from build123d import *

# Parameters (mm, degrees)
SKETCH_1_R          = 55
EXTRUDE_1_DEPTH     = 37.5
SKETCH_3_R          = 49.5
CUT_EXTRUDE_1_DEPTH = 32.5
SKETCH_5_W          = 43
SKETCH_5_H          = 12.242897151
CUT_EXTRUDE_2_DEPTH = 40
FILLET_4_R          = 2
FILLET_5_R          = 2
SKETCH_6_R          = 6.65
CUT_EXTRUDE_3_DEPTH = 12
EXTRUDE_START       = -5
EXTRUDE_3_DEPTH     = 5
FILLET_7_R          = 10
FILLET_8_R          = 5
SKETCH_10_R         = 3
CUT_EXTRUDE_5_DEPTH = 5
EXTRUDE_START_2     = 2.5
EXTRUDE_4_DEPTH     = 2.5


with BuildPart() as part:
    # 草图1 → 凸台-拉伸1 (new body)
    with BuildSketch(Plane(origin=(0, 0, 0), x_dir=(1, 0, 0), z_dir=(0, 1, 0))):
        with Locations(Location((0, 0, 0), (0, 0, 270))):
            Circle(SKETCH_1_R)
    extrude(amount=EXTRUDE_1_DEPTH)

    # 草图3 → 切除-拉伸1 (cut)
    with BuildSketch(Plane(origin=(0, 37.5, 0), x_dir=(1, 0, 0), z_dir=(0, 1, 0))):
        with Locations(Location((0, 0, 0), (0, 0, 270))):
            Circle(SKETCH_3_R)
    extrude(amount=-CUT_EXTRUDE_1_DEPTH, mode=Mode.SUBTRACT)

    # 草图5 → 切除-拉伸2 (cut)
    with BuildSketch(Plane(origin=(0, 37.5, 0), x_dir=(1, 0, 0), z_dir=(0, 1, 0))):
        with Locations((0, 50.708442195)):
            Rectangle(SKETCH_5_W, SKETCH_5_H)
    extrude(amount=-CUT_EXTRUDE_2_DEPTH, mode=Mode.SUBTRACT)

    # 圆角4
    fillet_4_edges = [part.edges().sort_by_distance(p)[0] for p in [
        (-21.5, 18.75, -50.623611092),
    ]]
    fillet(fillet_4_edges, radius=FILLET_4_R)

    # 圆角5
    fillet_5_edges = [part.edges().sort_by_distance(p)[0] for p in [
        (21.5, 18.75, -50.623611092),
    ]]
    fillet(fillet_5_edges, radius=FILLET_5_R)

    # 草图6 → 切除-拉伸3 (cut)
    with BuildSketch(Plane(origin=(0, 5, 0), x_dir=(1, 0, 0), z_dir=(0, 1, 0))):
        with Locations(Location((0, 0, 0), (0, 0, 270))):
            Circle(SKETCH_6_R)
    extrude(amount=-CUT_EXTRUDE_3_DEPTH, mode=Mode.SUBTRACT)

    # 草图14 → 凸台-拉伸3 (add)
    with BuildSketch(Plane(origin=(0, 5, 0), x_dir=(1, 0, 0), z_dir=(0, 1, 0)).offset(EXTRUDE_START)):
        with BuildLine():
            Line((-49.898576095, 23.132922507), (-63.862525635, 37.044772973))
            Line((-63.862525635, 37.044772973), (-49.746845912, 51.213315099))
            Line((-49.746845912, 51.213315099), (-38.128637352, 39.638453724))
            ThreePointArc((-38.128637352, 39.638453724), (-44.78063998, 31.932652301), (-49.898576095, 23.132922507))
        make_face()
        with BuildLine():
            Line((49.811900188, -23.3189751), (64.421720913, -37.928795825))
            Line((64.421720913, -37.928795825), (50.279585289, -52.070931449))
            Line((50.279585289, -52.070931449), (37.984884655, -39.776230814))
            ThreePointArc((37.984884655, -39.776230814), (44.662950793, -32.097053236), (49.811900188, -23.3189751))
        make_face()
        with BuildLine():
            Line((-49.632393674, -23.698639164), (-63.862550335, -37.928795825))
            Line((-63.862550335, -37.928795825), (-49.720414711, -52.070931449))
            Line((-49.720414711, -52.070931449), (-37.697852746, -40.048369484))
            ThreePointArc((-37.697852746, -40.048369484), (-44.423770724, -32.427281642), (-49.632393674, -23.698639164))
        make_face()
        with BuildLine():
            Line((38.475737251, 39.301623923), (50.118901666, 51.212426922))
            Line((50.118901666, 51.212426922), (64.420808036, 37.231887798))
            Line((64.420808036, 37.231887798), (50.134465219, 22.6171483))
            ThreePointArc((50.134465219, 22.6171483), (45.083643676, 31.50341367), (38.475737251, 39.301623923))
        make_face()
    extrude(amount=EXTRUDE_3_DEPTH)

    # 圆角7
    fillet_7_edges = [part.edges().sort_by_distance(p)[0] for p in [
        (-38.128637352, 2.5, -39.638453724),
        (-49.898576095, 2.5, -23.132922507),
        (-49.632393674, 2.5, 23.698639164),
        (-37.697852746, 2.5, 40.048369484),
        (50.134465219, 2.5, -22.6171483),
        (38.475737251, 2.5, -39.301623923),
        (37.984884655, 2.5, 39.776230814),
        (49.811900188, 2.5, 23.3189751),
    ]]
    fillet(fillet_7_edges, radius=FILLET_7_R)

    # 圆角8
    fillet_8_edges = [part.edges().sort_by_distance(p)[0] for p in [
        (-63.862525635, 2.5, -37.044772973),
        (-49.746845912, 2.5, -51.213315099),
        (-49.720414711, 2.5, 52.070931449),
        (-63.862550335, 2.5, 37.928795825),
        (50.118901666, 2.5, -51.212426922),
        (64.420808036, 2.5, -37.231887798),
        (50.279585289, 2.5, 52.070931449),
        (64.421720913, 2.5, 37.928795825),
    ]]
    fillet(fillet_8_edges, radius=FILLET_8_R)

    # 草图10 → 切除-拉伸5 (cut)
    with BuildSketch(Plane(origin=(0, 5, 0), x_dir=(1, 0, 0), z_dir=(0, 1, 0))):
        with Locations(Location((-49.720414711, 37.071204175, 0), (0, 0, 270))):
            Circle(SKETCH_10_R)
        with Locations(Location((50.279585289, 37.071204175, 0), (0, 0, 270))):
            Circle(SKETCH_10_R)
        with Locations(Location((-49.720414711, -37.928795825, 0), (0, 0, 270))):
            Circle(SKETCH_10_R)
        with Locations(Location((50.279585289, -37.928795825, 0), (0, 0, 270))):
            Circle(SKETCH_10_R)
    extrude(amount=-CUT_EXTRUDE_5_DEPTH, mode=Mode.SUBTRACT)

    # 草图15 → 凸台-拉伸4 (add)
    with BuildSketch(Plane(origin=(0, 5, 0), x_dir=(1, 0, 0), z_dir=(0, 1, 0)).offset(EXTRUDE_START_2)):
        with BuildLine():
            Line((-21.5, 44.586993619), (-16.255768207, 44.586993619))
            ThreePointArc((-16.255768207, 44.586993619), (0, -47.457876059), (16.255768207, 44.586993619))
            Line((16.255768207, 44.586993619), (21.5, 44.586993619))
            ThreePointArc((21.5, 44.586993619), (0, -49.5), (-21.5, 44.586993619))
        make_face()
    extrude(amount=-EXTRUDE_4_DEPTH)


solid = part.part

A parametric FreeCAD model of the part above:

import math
import FreeCAD as App
import Part
import Sketcher


def edges_at(feature, points):
    """Names of the edges that pass closest to the given points."""
    edges = feature.Shape.Edges
    near = lambda p: min(range(len(edges)), key=lambda i: edges[i].distToShape(Part.Vertex(*p))[0])
    return sorted({f"Edge{near(p) + 1}" for p in points})

doc = App.newDocument("Part")
params = doc.addObject("Spreadsheet::Sheet", "Params")
for row, (alias, value) in enumerate([
    ("sketch1_diameter", "110 mm"),
    ("pad1_length", "37.5 mm"),
    ("sketch2_diameter", "99 mm"),
    ("pocket1_length", "32.5 mm"),
    ("sketch3_width", "43 mm"),
    ("pocket2_length", "40 mm"),
    ("fillet_radius", "2 mm"),
    ("fillet2_radius", "2 mm"),
    ("sketch4_diameter", "13.3 mm"),
    ("pocket3_length", "12 mm"),
    ("sketch5_radius", "55 mm"),
    ("sketch5_length", "20 mm"),
    ("pad2_length", "5 mm"),
    ("fillet3_radius", "10 mm"),
    ("fillet4_radius", "5 mm"),
    ("sketch6_diameter", "6 mm"),
    ("pocket4_length", "5 mm"),
    ("sketch7_radius", "49.5 mm"),
    ("pad3_length", "2.5 mm"),
], start=1):
    params.set(f"A{row}", alias)
    params.set(f"B{row}", "=" + value)
    params.setAlias(f"B{row}", alias)

body = doc.addObject("PartDesign::Body", "Body")

# Sketch on XZ plane
sketch1 = body.newObject("Sketcher::SketchObject", "Sketch")
sketch1.AttachmentSupport = (doc.getObject("XZ_Plane"), [""])
sketch1.MapMode = "FlatFace"
sketch1.addGeometry(Part.Circle(App.Vector(0, 0, 0), App.Vector(0, 0, 1), 55), False)
sketch1.addConstraint([
    Sketcher.Constraint("Coincident", 0, 3, -1, 1),
    Sketcher.Constraint("Diameter", 0, 110.0),
])
sketch1.setExpression("Constraints[1]", "Params.sketch1_diameter")
pad1 = body.newObject("PartDesign::Pad", "Pad")
pad1.Profile = sketch1
pad1.setExpression("Length", "Params.pad1_length")
pad1.Reversed = True

# Sketch on XZ plane
sketch2 = body.newObject("Sketcher::SketchObject", "Sketch001")
sketch2.AttachmentSupport = (doc.getObject("XZ_Plane"), [""])
sketch2.MapMode = "FlatFace"
sketch2.AttachmentOffset = App.Placement(App.Vector(0, 0, -37.5), App.Rotation())
sketch2.addGeometry(Part.Circle(App.Vector(0, 0, 0), App.Vector(0, 0, 1), 50), False)
sketch2.addConstraint([
    Sketcher.Constraint("Coincident", 0, 3, -1, 1),
    Sketcher.Constraint("Diameter", 0, 99.0),
])
sketch2.setExpression("Constraints[1]", "Params.sketch2_diameter")
pocket1 = body.newObject("PartDesign::Pocket", "Pocket")
pocket1.Profile = sketch2
pocket1.setExpression("Length", "Params.pocket1_length")
pocket1.Reversed = True

# Sketch on XZ plane
sketch3 = body.newObject("Sketcher::SketchObject", "Sketch002")
sketch3.AttachmentSupport = (doc.getObject("XZ_Plane"), [""])
sketch3.MapMode = "FlatFace"
sketch3.AttachmentOffset = App.Placement(App.Vector(0, 0, -37.5), App.Rotation())
sketch3.addGeometry([
    Part.LineSegment(App.Vector(-22, -57, 0), App.Vector(-22, -45, 0)),
    Part.LineSegment(App.Vector(-22, -45, 0), App.Vector(22, -45, 0)),
    Part.LineSegment(App.Vector(22, -45, 0), App.Vector(22, -57, 0)),
    Part.LineSegment(App.Vector(22, -57, 0), App.Vector(-22, -57, 0)),
], False)
sketch3.addConstraint([
    Sketcher.Constraint("Coincident", 0, 2, 1, 1),
    Sketcher.Constraint("Coincident", 1, 2, 2, 1),
    Sketcher.Constraint("Coincident", 2, 2, 3, 1),
    Sketcher.Constraint("Coincident", 3, 2, 0, 1),
    Sketcher.Constraint("Vertical", 0),
    Sketcher.Constraint("Horizontal", 1),
    Sketcher.Constraint("Vertical", 2),
    Sketcher.Constraint("Horizontal", 3),
    Sketcher.Constraint("DistanceX", 1, 1, 1, 2, 43.0),
    Sketcher.Constraint("DistanceX", 0, 2, -1, 1, 21.5),
    Sketcher.Constraint("DistanceY", 0, 1, 0, 2, 12.242897),
    Sketcher.Constraint("DistanceY", 2, 2, -1, 1, 56.829891),
])
sketch3.setExpression("Constraints[8]", "Params.sketch3_width")
pocket2 = body.newObject("PartDesign::Pocket", "Pocket001")
pocket2.Profile = sketch3
pocket2.setExpression("Length", "Params.pocket2_length")
pocket2.Reversed = True
doc.recompute()

fillet = body.newObject("PartDesign::Fillet", "Fillet")
fillet.Base = (pocket2, edges_at(pocket2, [(-21.5, 18.75, -50.624)]))
fillet.setExpression("Radius", "Params.fillet_radius")
doc.recompute()

fillet2 = body.newObject("PartDesign::Fillet", "Fillet001")
fillet2.Base = (fillet, edges_at(fillet, [(21.5, 18.75, -50.624)]))
fillet2.setExpression("Radius", "Params.fillet2_radius")

# Sketch on XZ plane
sketch4 = body.newObject("Sketcher::SketchObject", "Sketch003")
sketch4.AttachmentSupport = (doc.getObject("XZ_Plane"), [""])
sketch4.MapMode = "FlatFace"
sketch4.AttachmentOffset = App.Placement(App.Vector(0, 0, -5), App.Rotation())
sketch4.addGeometry(Part.Circle(App.Vector(0, 0, 0), App.Vector(0, 0, 1), 7), False)
sketch4.addConstraint([
    Sketcher.Constraint("Coincident", 0, 3, -1, 1),
    Sketcher.Constraint("Diameter", 0, 13.3),
])
sketch4.setExpression("Constraints[1]", "Params.sketch4_diameter")
pocket3 = body.newObject("PartDesign::Pocket", "Pocket002")
pocket3.Profile = sketch4
pocket3.setExpression("Length", "Params.pocket3_length")
pocket3.Reversed = True

# Sketch on XZ plane
sketch5 = body.newObject("Sketcher::SketchObject", "Sketch004")
sketch5.AttachmentSupport = (doc.getObject("XZ_Plane"), [""])
sketch5.MapMode = "FlatFace"
sketch5.addGeometry([
    Part.LineSegment(App.Vector(-64, -37, 0), App.Vector(-50, -23, 0)),  # 0
    Part.ArcOfCircle(Part.Circle(App.Vector(0, 0, 0), App.Vector(0, 0, 1), 55), math.radians(-155), math.radians(-134)),  # 1
    Part.LineSegment(App.Vector(-38, -40, 0), App.Vector(-50, -51, 0)),  # 2
    Part.LineSegment(App.Vector(-50, -51, 0), App.Vector(-64, -37, 0)),  # 3
    Part.LineSegment(App.Vector(64, 38, 0), App.Vector(50, 23, 0)),  # 4
    Part.ArcOfCircle(Part.Circle(App.Vector(0, 0, 0), App.Vector(0, 0, 1), 55), math.radians(25), math.radians(46)),  # 5
    Part.LineSegment(App.Vector(38, 40, 0), App.Vector(50, 52, 0)),  # 6
    Part.LineSegment(App.Vector(50, 52, 0), App.Vector(64, 38, 0)),  # 7
    Part.LineSegment(App.Vector(-50, 24, 0), App.Vector(-64, 38, 0)),  # 8
    Part.LineSegment(App.Vector(-64, 38, 0), App.Vector(-50, 52, 0)),  # 9
    Part.LineSegment(App.Vector(-50, 52, 0), App.Vector(-38, 40, 0)),  # 10
    Part.ArcOfCircle(Part.Circle(App.Vector(0, 0, 0), App.Vector(0, 0, 1), 55), math.radians(133), math.radians(154)),  # 11
    Part.LineSegment(App.Vector(50, -51, 0), App.Vector(38, -39, 0)),  # 12
    Part.ArcOfCircle(Part.Circle(App.Vector(0, 0, 0), App.Vector(0, 0, 1), 55), math.radians(-46), math.radians(-24)),  # 13
    Part.LineSegment(App.Vector(50, -23, 0), App.Vector(64, -37, 0)),  # 14
    Part.LineSegment(App.Vector(64, -37, 0), App.Vector(50, -51, 0)),  # 15
], False)
sketch5.addConstraint([
    Sketcher.Constraint("Coincident", 0, 2, 1, 1),
    Sketcher.Constraint("Coincident", 1, 2, 2, 1),
    Sketcher.Constraint("Coincident", 2, 2, 3, 1),
    Sketcher.Constraint("Coincident", 3, 2, 0, 1),
    Sketcher.Constraint("Coincident", 4, 2, 5, 1),
    Sketcher.Constraint("Coincident", 5, 2, 6, 1),
    Sketcher.Constraint("Coincident", 6, 2, 7, 1),
    Sketcher.Constraint("Coincident", 7, 2, 4, 1),
    Sketcher.Constraint("Coincident", 8, 2, 9, 1),
    Sketcher.Constraint("Coincident", 9, 2, 10, 1),
    Sketcher.Constraint("Coincident", 10, 2, 11, 1),
    Sketcher.Constraint("Coincident", 11, 2, 8, 1),
    Sketcher.Constraint("Coincident", 12, 2, 13, 1),
    Sketcher.Constraint("Coincident", 13, 2, 14, 1),
    Sketcher.Constraint("Coincident", 14, 2, 15, 1),
    Sketcher.Constraint("Coincident", 15, 2, 12, 1),
    Sketcher.Constraint("Coincident", 1, 3, -1, 1),
    Sketcher.Constraint("Coincident", 5, 3, -1, 1),
    Sketcher.Constraint("Coincident", 11, 3, -1, 1),
    Sketcher.Constraint("Coincident", 13, 3, -1, 1),
    Sketcher.Constraint("Equal", 1, 5),
    Sketcher.Constraint("Equal", 5, 11),
    Sketcher.Constraint("Equal", 11, 13),
    Sketcher.Constraint("Parallel", 0, 2),
    Sketcher.Constraint("Perpendicular", 2, 3),
    Sketcher.Constraint("Parallel", 4, 6),
    Sketcher.Constraint("Perpendicular", 6, 7),
    Sketcher.Constraint("Parallel", 7, 8),
    Sketcher.Constraint("Perpendicular", 8, 9),
    Sketcher.Constraint("Perpendicular", 9, 10),
    Sketcher.Constraint("Parallel", 12, 14),
    Sketcher.Constraint("Perpendicular", 14, 15),
    Sketcher.Constraint("Horizontal", 7, 2, 8, 2),
    Sketcher.Constraint("Horizontal", 6, 2, 9, 2),
    Sketcher.Constraint("Equal", 3, 7),
    Sketcher.Constraint("Equal", 7, 9),
    Sketcher.Constraint("Equal", 9, 15),
    Sketcher.Constraint("Radius", 1, 55.0),
    Sketcher.Constraint("Distance", 3, 20.0),
    Sketcher.Constraint("Distance", 0, 19.711202),
    Sketcher.Constraint("DistanceX", -1, 1, 4, 2, 49.8119),
    Sketcher.Constraint("DistanceX", -1, 1, 15, 2, 50.118902),
    Sketcher.Constraint("DistanceX", 5, 2, 6, 2, 12.294701),
    Sketcher.Constraint("DistanceY", 12, 2, 4, 2, 62.620599),
    Sketcher.Constraint("Distance", 8, 20.124481),
    Sketcher.Constraint("Distance", 14, 20.437471),
    Sketcher.Constraint("DistanceX", 0, 2, 1, 2, 11.769939),
    Sketcher.Constraint("DistanceY", 1, 2, 0, 2, 16.505531),
])
sketch5.setExpression("Constraints[37]", "Params.sketch5_radius")
sketch5.setExpression("Constraints[38]", "Params.sketch5_length")
pad2 = body.newObject("PartDesign::Pad", "Pad001")
pad2.Profile = sketch5
pad2.setExpression("Length", "Params.pad2_length")
pad2.Reversed = True
doc.recompute()

fillet3 = body.newObject("PartDesign::Fillet", "Fillet002")
fillet3.Base = (pad2, edges_at(pad2, [
    (-38.129, 2.5, -39.638),
    (-49.899, 2.5, -23.133),
    (-49.632, 2.5, 23.699),
    (-37.698, 2.5, 40.048),
    (50.134, 2.5, -22.617),
    (38.476, 2.5, -39.302),
    (37.985, 2.5, 39.776),
    (49.812, 2.5, 23.319),
]))
fillet3.setExpression("Radius", "Params.fillet3_radius")
doc.recompute()

fillet4 = body.newObject("PartDesign::Fillet", "Fillet003")
fillet4.Base = (fillet3, edges_at(fillet3, [
    (-63.863, 2.5, -37.045),
    (-49.747, 2.5, -51.213),
    (-49.72, 2.5, 52.071),
    (-63.863, 2.5, 37.929),
    (50.119, 2.5, -51.212),
    (64.421, 2.5, -37.232),
    (50.28, 2.5, 52.071),
    (64.422, 2.5, 37.929),
]))
fillet4.setExpression("Radius", "Params.fillet4_radius")

# Sketch on XZ plane
sketch6 = body.newObject("Sketcher::SketchObject", "Sketch005")
sketch6.AttachmentSupport = (doc.getObject("XZ_Plane"), [""])
sketch6.MapMode = "FlatFace"
sketch6.AttachmentOffset = App.Placement(App.Vector(0, 0, -5), App.Rotation())
sketch6.addGeometry([
    Part.Circle(App.Vector(-49.7, -37.1, 0), App.Vector(0, 0, 1), 3),
    Part.Circle(App.Vector(50.3, -37.1, 0), App.Vector(0, 0, 1), 3),
    Part.Circle(App.Vector(-49.7, 37.9, 0), App.Vector(0, 0, 1), 3),
    Part.Circle(App.Vector(50.3, 37.9, 0), App.Vector(0, 0, 1), 3),
], False)
sketch6.addConstraint([
    Sketcher.Constraint("Equal", 0, 1),
    Sketcher.Constraint("Equal", 1, 2),
    Sketcher.Constraint("Equal", 2, 3),
    Sketcher.Constraint("Horizontal", 0, 3, 1, 3),
    Sketcher.Constraint("Horizontal", 2, 3, 3, 3),
    Sketcher.Constraint("Vertical", 0, 3, 2, 3),
    Sketcher.Constraint("Vertical", 1, 3, 3, 3),
    Sketcher.Constraint("Diameter", 0, 6.0),
    Sketcher.Constraint("DistanceX", 0, 3, 1, 3, 100.0),
    Sketcher.Constraint("DistanceY", 0, 3, 2, 3, 75.0),
    Sketcher.Constraint("DistanceX", 0, 3, -1, 1, 49.720415),
    Sketcher.Constraint("DistanceY", 0, 3, -1, 1, 37.071204),
])
sketch6.setExpression("Constraints[7]", "Params.sketch6_diameter")
pocket4 = body.newObject("PartDesign::Pocket", "Pocket003")
pocket4.Profile = sketch6
pocket4.setExpression("Length", "Params.pocket4_length")
pocket4.Reversed = True

# Sketch on XZ plane
sketch7 = body.newObject("Sketcher::SketchObject", "Sketch006")
sketch7.AttachmentSupport = (doc.getObject("XZ_Plane"), [""])
sketch7.MapMode = "FlatFace"
sketch7.AttachmentOffset = App.Placement(App.Vector(0, 0, -7.5), App.Rotation())
sketch7.addGeometry([
    Part.LineSegment(App.Vector(-16, -45, 0), App.Vector(-22, -45, 0)),
    Part.ArcOfCircle(Part.Circle(App.Vector(0, 0, 0), App.Vector(0, 0, 1), 50), math.radians(-64), math.radians(244)),
    Part.LineSegment(App.Vector(22, -45, 0), App.Vector(16, -45, 0)),
    Part.ArcOfCircle(Part.Circle(App.Vector(0, 0, 0), App.Vector(0, 0, 1), 47), math.radians(-70), math.radians(250)),
], False)
sketch7.addConstraint([
    Sketcher.Constraint("Coincident", 0, 2, 1, 2),
    Sketcher.Constraint("Coincident", 1, 1, 2, 1),
    Sketcher.Constraint("Coincident", 2, 2, 3, 1),
    Sketcher.Constraint("Coincident", 3, 2, 0, 1),
    Sketcher.Constraint("Horizontal", 0),
    Sketcher.Constraint("Horizontal", 2),
    Sketcher.Constraint("Coincident", 1, 3, -1, 1),
    Sketcher.Constraint("Coincident", 3, 3, -1, 1),
    Sketcher.Constraint("Horizontal", 0, 2, 1, 1),
    Sketcher.Constraint("Radius", 1, 49.5),
    Sketcher.Constraint("DistanceX", 0, 2, 1, 1, 43.0),
    Sketcher.Constraint("Radius", 3, 47.457876),
])
sketch7.setExpression("Constraints[9]", "Params.sketch7_radius")
pad3 = body.newObject("PartDesign::Pad", "Pad002")
pad3.Profile = sketch7
pad3.setExpression("Length", "Params.pad3_length")

doc.recompute()
